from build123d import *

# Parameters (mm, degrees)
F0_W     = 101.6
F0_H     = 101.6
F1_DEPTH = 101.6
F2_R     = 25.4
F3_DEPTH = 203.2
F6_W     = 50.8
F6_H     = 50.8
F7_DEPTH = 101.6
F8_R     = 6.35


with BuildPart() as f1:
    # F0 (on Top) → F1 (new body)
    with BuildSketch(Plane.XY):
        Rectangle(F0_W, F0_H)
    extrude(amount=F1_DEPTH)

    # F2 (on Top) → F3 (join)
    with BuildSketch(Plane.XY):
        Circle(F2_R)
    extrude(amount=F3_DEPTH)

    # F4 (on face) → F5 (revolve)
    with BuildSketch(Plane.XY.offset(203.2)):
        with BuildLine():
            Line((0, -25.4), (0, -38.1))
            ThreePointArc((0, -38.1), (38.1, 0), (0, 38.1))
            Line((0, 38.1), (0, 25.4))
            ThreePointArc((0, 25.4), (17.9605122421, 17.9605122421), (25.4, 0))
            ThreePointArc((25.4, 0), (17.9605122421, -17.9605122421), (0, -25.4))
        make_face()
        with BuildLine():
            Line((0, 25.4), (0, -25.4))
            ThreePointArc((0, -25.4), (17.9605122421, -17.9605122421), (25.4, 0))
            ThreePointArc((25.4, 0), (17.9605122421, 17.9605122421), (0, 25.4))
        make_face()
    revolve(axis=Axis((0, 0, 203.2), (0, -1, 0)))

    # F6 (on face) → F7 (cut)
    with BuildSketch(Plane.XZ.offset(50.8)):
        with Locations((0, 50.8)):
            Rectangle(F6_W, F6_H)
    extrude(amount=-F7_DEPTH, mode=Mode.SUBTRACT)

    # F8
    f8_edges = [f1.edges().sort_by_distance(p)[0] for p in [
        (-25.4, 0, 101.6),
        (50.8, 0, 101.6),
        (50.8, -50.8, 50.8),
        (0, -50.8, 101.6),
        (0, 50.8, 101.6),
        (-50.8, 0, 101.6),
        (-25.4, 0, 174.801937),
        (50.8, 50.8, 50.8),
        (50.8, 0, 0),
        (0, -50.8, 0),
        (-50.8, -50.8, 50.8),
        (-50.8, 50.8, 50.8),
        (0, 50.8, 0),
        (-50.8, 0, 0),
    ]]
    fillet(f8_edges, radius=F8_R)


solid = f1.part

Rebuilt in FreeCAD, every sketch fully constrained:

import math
import FreeCAD as App
import Part
import Sketcher
from FreeCAD import Vector
Q = App.Units.Quantity


def edges_at(feature, points):
    """Names of the edges that pass closest to the given points."""
    edges = feature.Shape.Edges
    near = lambda p: min(range(len(edges)), key=lambda i: edges[i].distToShape(Part.Vertex(*p))[0])
    return sorted({f"Edge{near(p) + 1}" for p in points})

doc = App.newDocument("Part")
body = doc.addObject("PartDesign::Body", "Body")

sketch1 = body.newObject("Sketcher::SketchObject", "Sketch")
sketch1.AttachmentSupport = (doc.getObject("XY_Plane"), [""])
sketch1.MapMode = "FlatFace"
sketch1.addGeometry(Part.LineSegment(Vector(-51, 51, 0), Vector(-51, -51, 0)), False)
sketch1.addGeometry(Part.LineSegment(Vector(-51, -51, 0), Vector(51, -51, 0)), False)
sketch1.addGeometry(Part.LineSegment(Vector(51, -51, 0), Vector(51, 51, 0)), False)
sketch1.addGeometry(Part.LineSegment(Vector(51, 51, 0), Vector(-51, 51, 0)), False)
sketch1.addConstraint(Sketcher.Constraint("Coincident", 0, 2, 1, 1))
sketch1.addConstraint(Sketcher.Constraint("Coincident", 1, 2, 2, 1))
sketch1.addConstraint(Sketcher.Constraint("Coincident", 2, 2, 3, 1))
sketch1.addConstraint(Sketcher.Constraint("Coincident", 3, 2, 0, 1))
sketch1.addConstraint(Sketcher.Constraint("Vertical", 0))
sketch1.addConstraint(Sketcher.Constraint("Horizontal", 1))
sketch1.addConstraint(Sketcher.Constraint("Vertical", 2))
sketch1.addConstraint(Sketcher.Constraint("Horizontal", 3))
sketch1.addConstraint(Sketcher.Constraint("Symmetric", 0, 2, 2, 2, -1, 1))
sketch1.addConstraint(Sketcher.Constraint("Equal", 3, 0))
sketch1.addConstraint(Sketcher.Constraint("DistanceX", 1, 1, 1, 2, Q("4 in")))
pad1 = body.newObject("PartDesign::Pad", "Pad")
pad1.Profile = sketch1
pad1.Length = Q("4 in")

sketch2 = body.newObject("Sketcher::SketchObject", "Sketch001")
sketch2.AttachmentSupport = (doc.getObject("XY_Plane"), [""])
sketch2.MapMode = "FlatFace"
sketch2.addGeometry(Part.Circle(Vector(0, 0, 0), Vector(0, 0, 1), 25), False)
sketch2.addConstraint(Sketcher.Constraint("Coincident", 0, 3, -1, 1))
sketch2.addConstraint(Sketcher.Constraint("Diameter", 0, Q("2 in")))
pad2 = body.newObject("PartDesign::Pad", "Pad001")
pad2.Profile = sketch2
pad2.Length = Q("8 in")

sketch3 = body.newObject("Sketcher::SketchObject", "Sketch002")
sketch3.AttachmentSupport = (doc.getObject("XY_Plane"), [""])
sketch3.MapMode = "FlatFace"
sketch3.AttachmentOffset = App.Placement(Vector(0, 0, 8 * 25.4), App.Rotation())
sketch3.addGeometry(Part.ArcOfCircle(Part.Circle(Vector(0, 0, 0), Vector(0, 0, 1), 38), math.radians(-90), math.radians(90)), False)
sketch3.addGeometry(Part.LineSegment(Vector(0, 38, 0), Vector(0, -38, 0)), False)
sketch3.addConstraint(Sketcher.Constraint("Coincident", 0, 1, 1, 2))
sketch3.addConstraint(Sketcher.Constraint("Coincident", 1, 1, 0, 2))
sketch3.addConstraint(Sketcher.Constraint("Vertical", 1))
sketch3.addConstraint(Sketcher.Constraint("Coincident", 0, 3, -1, 1))
sketch3.addConstraint(Sketcher.Constraint("PointOnObject", 0, 1, -2))
sketch3.addConstraint(Sketcher.Constraint("Radius", 0, Q("1.5 in")))
revolution = body.newObject("PartDesign::Revolution", "Revolution")
revolution.Profile = sketch3
revolution.ReferenceAxis = (sketch3, ["V_Axis"])
revolution.Angle = 360

sketch4 = body.newObject("Sketcher::SketchObject", "Sketch003")
sketch4.AttachmentSupport = (doc.getObject("XZ_Plane"), [""])
sketch4.MapMode = "FlatFace"
sketch4.AttachmentOffset = App.Placement(Vector(0, 0, 2 * 25.4), App.Rotation())
sketch4.addGeometry(Part.LineSegment(Vector(-25, 76, 0), Vector(-25, 25, 0)), False)
sketch4.addGeometry(Part.LineSegment(Vector(-25, 25, 0), Vector(25, 25, 0)), False)
sketch4.addGeometry(Part.LineSegment(Vector(25, 25, 0), Vector(25, 76, 0)), False)
sketch4.addGeometry(Part.LineSegment(Vector(25, 76, 0), Vector(-25, 76, 0)), False)
sketch4.addConstraint(Sketcher.Constraint("Coincident", 0, 2, 1, 1))
sketch4.addConstraint(Sketcher.Constraint("Coincident", 1, 2, 2, 1))
sketch4.addConstraint(Sketcher.Constraint("Coincident", 2, 2, 3, 1))
sketch4.addConstraint(Sketcher.Constraint("Coincident", 3, 2, 0, 1))
sketch4.addConstraint(Sketcher.Constraint("Vertical", 0))
sketch4.addConstraint(Sketcher.Constraint("Horizontal", 1))
sketch4.addConstraint(Sketcher.Constraint("Vertical", 2))
sketch4.addConstraint(Sketcher.Constraint("Horizontal", 3))
sketch4.addConstraint(Sketcher.Constraint("Equal", 3, 0))
sketch4.addConstraint(Sketcher.Constraint("DistanceX", 1, 1, 1, 2, Q("2 in")))
sketch4.addConstraint(Sketcher.Constraint("DistanceX", 0, 2, -1, 1, Q("1 in")))
sketch4.addConstraint(Sketcher.Constraint("DistanceY", -1, 1, 0, 2, Q("1 in")))
pocket1 = body.newObject("PartDesign::Pocket", "Pocket")
pocket1.Profile = sketch4
pocket1.Length = Q("4 in")
doc.recompute()

fillet = body.newObject("PartDesign::Fillet", "Fillet")
fillet.Base = (pocket1, edges_at(pocket1, [
    (-25.4, 0, 101.6),
    (50.8, 0, 101.6),
    (50.8, -50.8, 50.8),
    (0, -50.8, 101.6),
    (0, 50.8, 101.6),
    (-50.8, 0, 101.6),
    (-25.4, 0, 174.802),
    (50.8, 50.8, 50.8),
    (50.8, 0, 0),
    (0, -50.8, 0),
    (-50.8, -50.8, 50.8),
    (-50.8, 50.8, 50.8),
    (0, 50.8, 0),
    (-50.8, 0, 0),
]))
fillet.Radius = Q("0.25 in")

doc.recompute()
